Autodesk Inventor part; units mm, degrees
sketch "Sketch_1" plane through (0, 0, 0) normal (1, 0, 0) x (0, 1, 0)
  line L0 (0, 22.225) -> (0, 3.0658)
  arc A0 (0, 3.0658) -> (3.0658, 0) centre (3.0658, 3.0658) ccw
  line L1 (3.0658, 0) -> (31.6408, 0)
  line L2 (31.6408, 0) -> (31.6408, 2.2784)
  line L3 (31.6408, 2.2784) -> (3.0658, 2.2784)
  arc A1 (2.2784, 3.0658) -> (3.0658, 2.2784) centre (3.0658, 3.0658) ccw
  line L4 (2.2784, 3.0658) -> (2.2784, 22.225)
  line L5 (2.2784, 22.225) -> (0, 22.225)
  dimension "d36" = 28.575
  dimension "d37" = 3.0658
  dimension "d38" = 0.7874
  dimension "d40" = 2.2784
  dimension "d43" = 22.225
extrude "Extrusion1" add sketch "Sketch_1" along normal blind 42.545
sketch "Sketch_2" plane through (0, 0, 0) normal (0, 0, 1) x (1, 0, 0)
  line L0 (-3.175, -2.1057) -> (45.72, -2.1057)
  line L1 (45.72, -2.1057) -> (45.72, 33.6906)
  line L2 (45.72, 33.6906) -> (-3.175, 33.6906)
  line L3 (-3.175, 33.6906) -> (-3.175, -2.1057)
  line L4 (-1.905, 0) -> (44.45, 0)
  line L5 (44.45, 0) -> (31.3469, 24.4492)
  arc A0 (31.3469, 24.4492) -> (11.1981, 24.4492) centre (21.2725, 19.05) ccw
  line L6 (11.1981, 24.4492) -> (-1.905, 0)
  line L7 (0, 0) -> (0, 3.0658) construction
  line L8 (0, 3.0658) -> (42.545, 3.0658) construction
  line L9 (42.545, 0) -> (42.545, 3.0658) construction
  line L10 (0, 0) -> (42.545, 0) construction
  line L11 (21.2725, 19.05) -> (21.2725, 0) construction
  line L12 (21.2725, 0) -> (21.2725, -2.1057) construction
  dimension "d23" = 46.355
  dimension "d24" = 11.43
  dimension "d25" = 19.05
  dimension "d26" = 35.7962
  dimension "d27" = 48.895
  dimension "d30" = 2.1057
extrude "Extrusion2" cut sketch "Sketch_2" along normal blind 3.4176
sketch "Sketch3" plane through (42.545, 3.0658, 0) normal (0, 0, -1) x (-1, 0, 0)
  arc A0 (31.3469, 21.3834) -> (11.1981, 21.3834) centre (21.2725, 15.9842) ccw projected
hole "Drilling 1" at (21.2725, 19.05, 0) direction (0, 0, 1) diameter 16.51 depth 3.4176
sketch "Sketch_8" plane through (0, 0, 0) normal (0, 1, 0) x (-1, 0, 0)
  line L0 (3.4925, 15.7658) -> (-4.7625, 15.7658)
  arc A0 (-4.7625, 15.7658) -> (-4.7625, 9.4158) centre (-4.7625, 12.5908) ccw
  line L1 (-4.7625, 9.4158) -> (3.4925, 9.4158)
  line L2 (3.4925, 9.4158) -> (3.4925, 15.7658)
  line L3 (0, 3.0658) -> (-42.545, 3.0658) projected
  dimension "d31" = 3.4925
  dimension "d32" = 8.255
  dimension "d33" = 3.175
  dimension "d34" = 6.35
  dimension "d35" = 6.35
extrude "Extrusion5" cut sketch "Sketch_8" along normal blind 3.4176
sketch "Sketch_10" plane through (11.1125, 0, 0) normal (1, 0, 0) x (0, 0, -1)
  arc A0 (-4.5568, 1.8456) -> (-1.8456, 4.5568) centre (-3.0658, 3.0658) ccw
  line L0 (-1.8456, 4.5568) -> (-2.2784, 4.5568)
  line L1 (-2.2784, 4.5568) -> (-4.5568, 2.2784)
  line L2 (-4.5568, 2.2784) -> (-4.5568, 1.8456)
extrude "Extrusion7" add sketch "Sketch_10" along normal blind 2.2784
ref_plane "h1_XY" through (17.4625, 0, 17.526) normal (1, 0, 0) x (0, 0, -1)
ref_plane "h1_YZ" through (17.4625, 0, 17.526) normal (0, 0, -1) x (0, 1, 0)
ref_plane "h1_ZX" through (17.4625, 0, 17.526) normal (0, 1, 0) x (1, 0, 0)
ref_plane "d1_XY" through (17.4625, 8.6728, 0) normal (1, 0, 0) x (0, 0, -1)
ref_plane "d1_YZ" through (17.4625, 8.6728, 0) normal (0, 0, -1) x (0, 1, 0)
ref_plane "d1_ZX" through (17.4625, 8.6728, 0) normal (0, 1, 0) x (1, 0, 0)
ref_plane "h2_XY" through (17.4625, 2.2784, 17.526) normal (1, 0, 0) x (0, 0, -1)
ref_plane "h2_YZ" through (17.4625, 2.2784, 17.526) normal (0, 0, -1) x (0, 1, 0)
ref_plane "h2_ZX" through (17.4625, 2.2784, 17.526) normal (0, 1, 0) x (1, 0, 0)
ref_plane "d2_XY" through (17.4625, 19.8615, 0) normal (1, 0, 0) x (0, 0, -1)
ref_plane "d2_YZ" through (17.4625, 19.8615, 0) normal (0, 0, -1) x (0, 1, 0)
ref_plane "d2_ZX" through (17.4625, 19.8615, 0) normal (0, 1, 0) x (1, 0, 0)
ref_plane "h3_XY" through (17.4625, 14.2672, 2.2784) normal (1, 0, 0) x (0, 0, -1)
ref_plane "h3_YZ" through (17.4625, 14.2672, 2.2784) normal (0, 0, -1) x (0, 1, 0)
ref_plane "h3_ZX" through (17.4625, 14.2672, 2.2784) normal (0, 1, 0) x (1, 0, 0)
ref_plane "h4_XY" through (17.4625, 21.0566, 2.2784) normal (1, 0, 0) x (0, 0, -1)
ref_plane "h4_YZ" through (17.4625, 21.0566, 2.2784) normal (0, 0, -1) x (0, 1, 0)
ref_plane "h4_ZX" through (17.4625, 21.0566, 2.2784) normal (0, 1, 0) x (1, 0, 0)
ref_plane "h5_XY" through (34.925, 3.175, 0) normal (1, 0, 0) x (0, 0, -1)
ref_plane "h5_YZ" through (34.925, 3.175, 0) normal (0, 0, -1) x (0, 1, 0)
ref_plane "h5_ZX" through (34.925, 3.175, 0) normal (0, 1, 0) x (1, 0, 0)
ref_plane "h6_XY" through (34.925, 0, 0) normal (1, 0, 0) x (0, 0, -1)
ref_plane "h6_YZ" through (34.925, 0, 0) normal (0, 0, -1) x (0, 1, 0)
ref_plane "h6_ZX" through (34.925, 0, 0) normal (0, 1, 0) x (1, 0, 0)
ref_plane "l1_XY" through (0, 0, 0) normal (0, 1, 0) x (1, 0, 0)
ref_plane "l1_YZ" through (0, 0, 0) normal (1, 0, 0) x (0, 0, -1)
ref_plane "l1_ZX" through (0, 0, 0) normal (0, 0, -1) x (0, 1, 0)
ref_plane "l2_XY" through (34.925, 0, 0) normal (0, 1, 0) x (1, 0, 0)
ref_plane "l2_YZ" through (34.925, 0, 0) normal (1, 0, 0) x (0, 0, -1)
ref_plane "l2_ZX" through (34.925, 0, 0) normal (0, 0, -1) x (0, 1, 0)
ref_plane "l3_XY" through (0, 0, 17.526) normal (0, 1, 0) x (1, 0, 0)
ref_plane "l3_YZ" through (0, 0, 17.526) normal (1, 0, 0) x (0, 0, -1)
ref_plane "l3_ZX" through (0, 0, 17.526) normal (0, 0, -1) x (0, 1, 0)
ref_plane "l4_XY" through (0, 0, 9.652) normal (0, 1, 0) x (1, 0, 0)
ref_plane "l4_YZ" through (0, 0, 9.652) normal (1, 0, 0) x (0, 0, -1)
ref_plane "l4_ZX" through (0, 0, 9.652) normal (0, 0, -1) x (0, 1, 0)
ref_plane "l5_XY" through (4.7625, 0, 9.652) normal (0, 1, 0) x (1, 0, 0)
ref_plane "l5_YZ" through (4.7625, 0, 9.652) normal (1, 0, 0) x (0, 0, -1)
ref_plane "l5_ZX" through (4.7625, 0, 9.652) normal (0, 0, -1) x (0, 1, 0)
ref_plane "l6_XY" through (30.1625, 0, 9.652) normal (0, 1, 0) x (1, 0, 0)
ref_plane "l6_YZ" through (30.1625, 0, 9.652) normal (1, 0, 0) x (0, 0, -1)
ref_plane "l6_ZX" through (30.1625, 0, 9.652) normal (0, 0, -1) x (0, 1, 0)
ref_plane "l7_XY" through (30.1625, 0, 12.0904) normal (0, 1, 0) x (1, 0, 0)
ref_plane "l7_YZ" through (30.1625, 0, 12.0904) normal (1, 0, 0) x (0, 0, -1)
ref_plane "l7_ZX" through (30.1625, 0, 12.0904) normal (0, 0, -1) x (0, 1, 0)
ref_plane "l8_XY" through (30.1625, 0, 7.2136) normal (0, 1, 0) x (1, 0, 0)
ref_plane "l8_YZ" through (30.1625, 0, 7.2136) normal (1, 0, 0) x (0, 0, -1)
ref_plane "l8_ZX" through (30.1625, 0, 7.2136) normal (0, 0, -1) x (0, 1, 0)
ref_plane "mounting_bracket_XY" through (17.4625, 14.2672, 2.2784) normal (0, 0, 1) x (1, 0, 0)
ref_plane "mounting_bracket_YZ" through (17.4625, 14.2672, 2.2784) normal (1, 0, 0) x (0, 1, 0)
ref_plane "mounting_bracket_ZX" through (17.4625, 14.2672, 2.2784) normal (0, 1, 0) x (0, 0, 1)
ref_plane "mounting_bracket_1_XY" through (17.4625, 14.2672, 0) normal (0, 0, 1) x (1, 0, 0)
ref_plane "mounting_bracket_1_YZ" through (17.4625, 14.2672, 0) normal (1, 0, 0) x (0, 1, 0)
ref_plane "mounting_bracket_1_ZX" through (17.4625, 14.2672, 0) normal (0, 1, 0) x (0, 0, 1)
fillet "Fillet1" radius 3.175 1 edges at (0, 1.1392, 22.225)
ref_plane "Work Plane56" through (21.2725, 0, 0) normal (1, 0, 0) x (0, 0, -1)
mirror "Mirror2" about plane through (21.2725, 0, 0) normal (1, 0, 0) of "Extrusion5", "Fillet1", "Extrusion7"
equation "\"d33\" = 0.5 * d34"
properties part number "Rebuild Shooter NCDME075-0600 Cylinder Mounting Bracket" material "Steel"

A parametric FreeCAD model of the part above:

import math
import FreeCAD as App
import Part
import Sketcher

V = App.Vector
Q = App.Units.Quantity


def edges_at(feature, points):
    """Names of the edges that pass closest to the given points."""
    edges = feature.Shape.Edges
    near = lambda p: min(range(len(edges)), key=lambda i: edges[i].distToShape(Part.Vertex(*p))[0])
    return sorted({f"Edge{near(p) + 1}" for p in points})

doc = App.newDocument("Part")
body = doc.addObject("PartDesign::Body", "Body")

sketch1 = doc.addObject("Sketcher::SketchObject", "Sketch")
body.addObject(sketch1)
sketch1.AttachmentSupport = (doc.YZ_Plane, [""])
sketch1.MapMode = "FlatFace"
sketch1.addGeometry(Part.LineSegment(V(2.3, 22.2, 0), V(0, 22.2, 0)), False)
sketch1.addGeometry(Part.LineSegment(V(0, 22.2, 0), V(0, 3.1, 0)), False)
sketch1.addGeometry(Part.ArcOfCircle(Part.Circle(V(3.1, 3.1, 0), V(0, 0, 1), 3.1), math.radians(180), math.radians(270)), False)
sketch1.addGeometry(Part.LineSegment(V(3.1, 0, 0), V(31.6, 0, 0)), False)
sketch1.addGeometry(Part.LineSegment(V(31.6, 0, 0), V(31.6, 2.3, 0)), False)
sketch1.addGeometry(Part.LineSegment(V(31.6, 2.3, 0), V(3.1, 2.3, 0)), False)
sketch1.addGeometry(Part.ArcOfCircle(Part.Circle(V(3.1, 3.1, 0), V(0, 0, 1), 0.8), math.radians(180), math.radians(270)), False)
sketch1.addGeometry(Part.LineSegment(V(2.3, 3.1, 0), V(2.3, 22.2, 0)), False)
sketch1.addConstraint(Sketcher.Constraint("Coincident", 0, 2, 1, 1))
sketch1.addConstraint(Sketcher.Constraint("Tangent", 1, 2, 2, 1))
sketch1.addConstraint(Sketcher.Constraint("Tangent", 2, 2, 3, 1))
sketch1.addConstraint(Sketcher.Constraint("Coincident", 3, 2, 4, 1))
sketch1.addConstraint(Sketcher.Constraint("Coincident", 4, 2, 5, 1))
sketch1.addConstraint(Sketcher.Constraint("Tangent", 5, 2, 6, 2))
sketch1.addConstraint(Sketcher.Constraint("Tangent", 6, 1, 7, 1))
sketch1.addConstraint(Sketcher.Constraint("Coincident", 7, 2, 0, 1))
sketch1.addConstraint(Sketcher.Constraint("Horizontal", 0))
sketch1.addConstraint(Sketcher.Constraint("Vertical", 1))
sketch1.addConstraint(Sketcher.Constraint("Horizontal", 3))
sketch1.addConstraint(Sketcher.Constraint("Vertical", 4))
sketch1.addConstraint(Sketcher.Constraint("Horizontal", 5))
sketch1.addConstraint(Sketcher.Constraint("Vertical", 7))
sketch1.addConstraint(Sketcher.Constraint("Coincident", 6, 3, 2, 3))
sketch1.addConstraint(Sketcher.Constraint("PointOnObject", 0, 2, -2))
sketch1.addConstraint(Sketcher.Constraint("PointOnObject", 2, 2, -1))
sketch1.addConstraint(Sketcher.Constraint("Radius", 6, Q("0.031 in")))
sketch1.addConstraint(Sketcher.Constraint("Radius", 2, Q("0.1207 in")))
sketch1.addConstraint(Sketcher.Constraint("DistanceX", 3, 1, 3, 2, Q("1.125 in")))
sketch1.addConstraint(Sketcher.Constraint("DistanceY", -1, 1, 0, 2, Q("0.875 in")))
pad1 = doc.addObject("PartDesign::Pad", "Pad")
body.addObject(pad1)
pad1.Profile = sketch1
pad1.Length = Q("1.675 in")

sketch2 = doc.addObject("Sketcher::SketchObject", "Sketch001")
body.addObject(sketch2)
sketch2.AttachmentSupport = (doc.XY_Plane, [""])
sketch2.MapMode = "FlatFace"
sketch2.addGeometry(Part.LineSegment(V(-3, 34, 0), V(-3, -2, 0)), False)
sketch2.addGeometry(Part.LineSegment(V(-3, -2, 0), V(46, -2, 0)), False)
sketch2.addGeometry(Part.LineSegment(V(46, -2, 0), V(46, 34, 0)), False)
sketch2.addGeometry(Part.LineSegment(V(46, 34, 0), V(-3, 34, 0)), False)
sketch2.addGeometry(Part.LineSegment(V(44, 0, 0), V(-2, 0, 0)), False)
sketch2.addGeometry(Part.LineSegment(V(-2, 0, 0), V(11, 24, 0)), False)
sketch2.addGeometry(Part.ArcOfCircle(Part.Circle(V(21, 19, 0), V(0, 0, 1), 11), math.radians(28), math.radians(152)), False)
sketch2.addGeometry(Part.LineSegment(V(31, 24, 0), V(44, 0, 0)), False)
sketch2.addConstraint(Sketcher.Constraint("Coincident", 0, 2, 1, 1))
sketch2.addConstraint(Sketcher.Constraint("Coincident", 1, 2, 2, 1))
sketch2.addConstraint(Sketcher.Constraint("Coincident", 2, 2, 3, 1))
sketch2.addConstraint(Sketcher.Constraint("Coincident", 3, 2, 0, 1))
sketch2.addConstraint(Sketcher.Constraint("Coincident", 4, 2, 5, 1))
sketch2.addConstraint(Sketcher.Constraint("Tangent", 5, 2, 6, 2))
sketch2.addConstraint(Sketcher.Constraint("Tangent", 6, 1, 7, 1))
sketch2.addConstraint(Sketcher.Constraint("Coincident", 7, 2, 4, 1))
sketch2.addConstraint(Sketcher.Constraint("Vertical", 0))
sketch2.addConstraint(Sketcher.Constraint("Horizontal", 1))
sketch2.addConstraint(Sketcher.Constraint("Vertical", 2))
sketch2.addConstraint(Sketcher.Constraint("Horizontal", 3))
sketch2.addConstraint(Sketcher.Constraint("Horizontal", 4))
sketch2.addConstraint(Sketcher.Constraint("PointOnObject", 4, 2, -1))
sketch2.addConstraint(Sketcher.Constraint("Horizontal", 5, 2, 6, 1))
sketch2.addConstraint(Sketcher.Constraint("Radius", 6, Q("0.45 in")))
sketch2.addConstraint(Sketcher.Constraint("DistanceX", 1, 1, 1, 2, Q("1.925 in")))
sketch2.addConstraint(Sketcher.Constraint("DistanceX", 4, 2, 4, 1, Q("1.825 in")))
sketch2.addConstraint(Sketcher.Constraint("DistanceY", -1, 1, 6, 3, Q("0.75 in")))
sketch2.addConstraint(Sketcher.Constraint("DistanceY", 0, 2, 0, 1, Q("1.4093 in")))
sketch2.addConstraint(Sketcher.Constraint("DistanceY", 0, 2, -1, 1, Q("0.0829 in")))
sketch2.addConstraint(Sketcher.Constraint("DistanceX", -1, 1, 1, 2, Q("1.8 in")))
sketch2.addConstraint(Sketcher.Constraint("DistanceX", -1, 1, 7, 2, Q("1.75 in")))
pocket1 = doc.addObject("PartDesign::Pocket", "Pocket")
body.addObject(pocket1)
pocket1.Profile = sketch2
pocket1.Length = 3.4176
pocket1.Reversed = True

sketch3 = doc.addObject("Sketcher::SketchObject", "Sketch002")
body.addObject(sketch3)
sketch3.AttachmentSupport = (doc.XY_Plane, [""])
sketch3.MapMode = "FlatFace"
sketch3.addGeometry(Part.Circle(V(21, 19, 0), V(0, 0, 1), 8), False)
sketch3.addConstraint(Sketcher.Constraint("Diameter", 0, Q("0.65 in")))
sketch3.addConstraint(Sketcher.Constraint("DistanceY", -1, 1, 0, 3, Q("0.75 in")))
sketch3.addConstraint(Sketcher.Constraint("DistanceX", -1, 1, 0, 3, Q("0.8375 in")))
doc.recompute()
hole = doc.addObject("PartDesign::Hole", "Hole")
body.addObject(hole)
hole.Profile = sketch3
hole.ThreadType = "None"
hole.Diameter = Q("0.65 in")
hole.DepthType = "Dimension"
hole.Depth = 3.4176
hole.DrillPoint = "Flat"
hole.Reversed = True

sketch4 = doc.addObject("Sketcher::SketchObject", "Sketch003")
body.addObject(sketch4)
sketch4.AttachmentSupport = (doc.XZ_Plane, [""])
sketch4.MapMode = "FlatFace"
sketch4.addGeometry(Part.LineSegment(V(-3.5, 9.4, 0), V(-3.5, 15.8, 0)), False)
sketch4.addGeometry(Part.LineSegment(V(-3.5, 15.8, 0), V(4.8, 15.8, 0)), False)
sketch4.addGeometry(Part.ArcOfCircle(Part.Circle(V(4.8, 12.6, 0), V(0, 0, 1), 3.2), math.radians(-90), math.radians(90)), False)
sketch4.addGeometry(Part.LineSegment(V(4.8, 9.4, 0), V(-3.5, 9.4, 0)), False)
sketch4.addConstraint(Sketcher.Constraint("Coincident", 0, 2, 1, 1))
sketch4.addConstraint(Sketcher.Constraint("Tangent", 1, 2, 2, 2))
sketch4.addConstraint(Sketcher.Constraint("Tangent", 2, 1, 3, 1))
sketch4.addConstraint(Sketcher.Constraint("Coincident", 3, 2, 0, 1))
sketch4.addConstraint(Sketcher.Constraint("Vertical", 0))
sketch4.addConstraint(Sketcher.Constraint("Horizontal", 1))
sketch4.addConstraint(Sketcher.Constraint("Horizontal", 3))
sketch4.addConstraint(Sketcher.Constraint("Radius", 2, Q("0.125 in")))
sketch4.addConstraint(Sketcher.Constraint("DistanceX", 1, 1, 1, 2, Q("0.325 in")))
sketch4.addConstraint(Sketcher.Constraint("DistanceX", 0, 2, -1, 1, Q("0.1375 in")))
sketch4.addConstraint(Sketcher.Constraint("DistanceY", -1, 1, 2, 3, Q("0.4957 in")))
pocket2 = doc.addObject("PartDesign::Pocket", "Pocket001")
body.addObject(pocket2)
pocket2.Profile = sketch4
pocket2.Length = 3.4176

sketch5 = doc.addObject("Sketcher::SketchObject", "Sketch004")
body.addObject(sketch5)
sketch5.AttachmentSupport = (doc.YZ_Plane, [""])
sketch5.MapMode = "FlatFace"
sketch5.AttachmentOffset = App.Placement(V(0, 0, 0.4375 * 25.4), App.Rotation())
sketch5.addGeometry(Part.LineSegment(V(2.28, 4.56, 0), V(1.85, 4.56, 0)), False)
sketch5.addGeometry(Part.ArcOfCircle(Part.Circle(V(3.07, 3.07, 0), V(0, 0, 1), 1.93), math.radians(129), math.radians(321)), False)
sketch5.addGeometry(Part.LineSegment(V(4.56, 1.85, 0), V(4.56, 2.28, 0)), False)
sketch5.addGeometry(Part.LineSegment(V(4.56, 2.28, 0), V(2.28, 4.56, 0)), False)
sketch5.addConstraint(Sketcher.Constraint("Coincident", 0, 2, 1, 1))
sketch5.addConstraint(Sketcher.Constraint("Coincident", 1, 2, 2, 1))
sketch5.addConstraint(Sketcher.Constraint("Coincident", 2, 2, 3, 1))
sketch5.addConstraint(Sketcher.Constraint("Coincident", 3, 2, 0, 1))
sketch5.addConstraint(Sketcher.Constraint("Horizontal", 0))
sketch5.addConstraint(Sketcher.Constraint("Vertical", 2))
sketch5.addConstraint(Sketcher.Constraint("Equal", 0, 2))
sketch5.addConstraint(Sketcher.Constraint("Angle", 3, Q("135 deg")))
sketch5.addConstraint(Sketcher.Constraint("Radius", 1, Q("1.9266 mm")))
sketch5.addConstraint(Sketcher.Constraint("DistanceY", 2, 2, 1, 3, Q("0.031 in")))
sketch5.addConstraint(Sketcher.Constraint("DistanceX", 0, 2, 0, 1, Q("0.4328 mm")))
sketch5.addConstraint(Sketcher.Constraint("DistanceX", -1, 1, 1, 3, Q("0.1207 in")))
sketch5.addConstraint(Sketcher.Constraint("DistanceY", -1, 1, 1, 3, Q("0.1207 in")))
pad2 = doc.addObject("PartDesign::Pad", "Pad001")
body.addObject(pad2)
pad2.Profile = sketch5
pad2.Length = Q("0.0897008 in")
doc.recompute()

fillet = doc.addObject("PartDesign::Fillet", "Fillet")
body.addObject(fillet)
fillet.Base = (pad2, edges_at(pad2, [(0, 1.139, 22.225)]))
fillet.Radius = Q("0.125 in")
doc.recompute()

datumplane = doc.addObject("PartDesign::Plane", "DatumPlane")
body.addObject(datumplane)
datumplane.AttachmentSupport = (doc.YZ_Plane, [""])
datumplane.MapMode = "FlatFace"
datumplane.AttachmentOffset = App.Placement(V(0, 0, 0.8375 * 25.4), App.Rotation())
mirrored = doc.addObject("PartDesign::Mirrored", "Mirrored")
body.addObject(mirrored)
mirrored.Originals = [pocket2, fillet, pad2]
mirrored.MirrorPlane = (datumplane, [""])
body.Tip = mirrored

doc.recompute()
